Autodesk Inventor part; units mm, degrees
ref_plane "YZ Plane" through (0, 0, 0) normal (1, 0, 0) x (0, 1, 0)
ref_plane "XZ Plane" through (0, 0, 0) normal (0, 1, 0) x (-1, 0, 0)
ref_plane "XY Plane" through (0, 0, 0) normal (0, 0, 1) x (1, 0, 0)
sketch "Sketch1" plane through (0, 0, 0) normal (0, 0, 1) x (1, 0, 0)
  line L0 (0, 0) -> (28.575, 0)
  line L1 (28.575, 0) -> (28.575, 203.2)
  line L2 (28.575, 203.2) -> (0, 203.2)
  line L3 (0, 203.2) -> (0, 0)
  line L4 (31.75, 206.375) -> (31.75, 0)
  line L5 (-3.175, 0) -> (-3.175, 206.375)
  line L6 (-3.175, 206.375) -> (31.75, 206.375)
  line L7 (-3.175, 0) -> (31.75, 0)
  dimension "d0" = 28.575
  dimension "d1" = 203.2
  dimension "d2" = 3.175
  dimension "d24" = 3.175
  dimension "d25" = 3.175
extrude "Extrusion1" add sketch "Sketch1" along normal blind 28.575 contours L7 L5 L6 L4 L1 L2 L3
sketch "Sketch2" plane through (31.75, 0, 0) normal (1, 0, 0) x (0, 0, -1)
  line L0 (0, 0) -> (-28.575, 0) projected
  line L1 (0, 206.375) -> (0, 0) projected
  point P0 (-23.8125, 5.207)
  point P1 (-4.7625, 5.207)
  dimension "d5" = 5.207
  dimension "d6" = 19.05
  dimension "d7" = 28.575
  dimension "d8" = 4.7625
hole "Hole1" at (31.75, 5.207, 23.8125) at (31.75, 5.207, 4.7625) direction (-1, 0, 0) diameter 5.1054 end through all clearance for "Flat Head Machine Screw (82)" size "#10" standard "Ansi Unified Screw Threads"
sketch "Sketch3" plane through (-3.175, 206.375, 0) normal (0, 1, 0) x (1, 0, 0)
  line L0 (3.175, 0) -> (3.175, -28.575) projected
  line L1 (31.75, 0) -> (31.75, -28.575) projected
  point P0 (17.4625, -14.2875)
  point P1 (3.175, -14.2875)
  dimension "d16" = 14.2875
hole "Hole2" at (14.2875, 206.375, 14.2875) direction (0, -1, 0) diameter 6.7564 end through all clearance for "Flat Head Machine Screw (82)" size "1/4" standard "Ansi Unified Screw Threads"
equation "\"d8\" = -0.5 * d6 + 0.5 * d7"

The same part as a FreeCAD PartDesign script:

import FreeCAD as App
import Part
import Sketcher
Q = App.Units.Quantity


def add_polygon(sketch, points):
    """Adds a closed chain of lines whose ends are joined by coincident constraints."""
    first, n = sketch.GeometryCount, len(points)
    for a, b in zip(points, points[1:] + points[:1]):
        sketch.addGeometry(Part.LineSegment(App.Vector(*a, 0), App.Vector(*b, 0)), False)
    for i in range(n):
        sketch.addConstraint(Sketcher.Constraint("Coincident", first + i, 2, first + (i + 1) % n, 1))

doc = App.newDocument("Part")
params = doc.addObject("Spreadsheet::Sheet", "Params")
for row, (alias, value) in enumerate([
    ("sketch1_height", "8 in"),
    ("sketch1_width", "0.125 in"),
    ("sketch1_width2", "1.125 in"),
    ("pad1_length", "1.125 in"),
    ("sketch2_diameter", "0.201 in"),
    ("hole_diameter", "0.201 in"),
    ("sketch3_diameter", "0.266 in"),
    ("hole2_diameter", "0.266 in"),
], start=1):
    params.set(f"A{row}", alias)
    params.set(f"B{row}", "=" + value)
    params.setAlias(f"B{row}", alias)

body = doc.addObject("PartDesign::Body", "Body")

# Sketch on XY plane
sketch1 = body.newObject("Sketcher::SketchObject", "Sketch")
sketch1.AttachmentSupport = (doc.getObject("XY_Plane"), [""])
sketch1.MapMode = "FlatFace"
add_polygon(sketch1, [(-3.2, 0), (0, 0), (0, 203.2), (28.6, 203.2), (28.6, 0), (31.8, 0), (31.8, 206.4), (-3.2, 206.4)])  # lines 0-7
sketch1.addConstraint([
    Sketcher.Constraint("Horizontal", 0),
    Sketcher.Constraint("Vertical", 1),
    Sketcher.Constraint("Horizontal", 2),
    Sketcher.Constraint("Vertical", 3),
    Sketcher.Constraint("Horizontal", 4),
    Sketcher.Constraint("Vertical", 5),
    Sketcher.Constraint("Horizontal", 6),
    Sketcher.Constraint("Vertical", 7),
    Sketcher.Constraint("Coincident", 0, 2, -1, 1),
    Sketcher.Constraint("PointOnObject", 3, 2, -1),
    Sketcher.Constraint("Equal", 0, 4),
    Sketcher.Constraint("DistanceY", 1, 1, 1, 2, Q("8 in")),
    Sketcher.Constraint("DistanceX", 0, 1, 0, 2, Q("0.125 in")),
    Sketcher.Constraint("DistanceX", 2, 1, 2, 2, Q("1.125 in")),
    Sketcher.Constraint("DistanceY", 2, 2, 5, 2, Q("0.125 in")),
])
sketch1.setExpression("Constraints[19]", "Params.sketch1_height")
sketch1.setExpression("Constraints[20]", "Params.sketch1_width")
sketch1.setExpression("Constraints[21]", "Params.sketch1_width2")
pad1 = body.newObject("PartDesign::Pad", "Pad")
pad1.Profile = sketch1
pad1.setExpression("Length", "Params.pad1_length")

# Sketch on YZ plane
sketch2 = body.newObject("Sketcher::SketchObject", "Sketch001")
sketch2.AttachmentSupport = (doc.getObject("YZ_Plane"), [""])
sketch2.MapMode = "FlatFace"
sketch2.AttachmentOffset = App.Placement(App.Vector(0, 0, 1.25 * 25.4), App.Rotation())
sketch2.addGeometry([
    Part.Circle(App.Vector(5.2, 23.8, 0), App.Vector(0, 0, 1), 2.6),
    Part.Circle(App.Vector(5.2, 4.8, 0), App.Vector(0, 0, 1), 2.6),
], False)
sketch2.addConstraint([
    Sketcher.Constraint("Equal", 0, 1),
    Sketcher.Constraint("Vertical", 0, 3, 1, 3),
    Sketcher.Constraint("Diameter", 0, Q("0.201 in")),
    Sketcher.Constraint("DistanceY", 1, 3, 0, 3, Q("0.75 in")),
    Sketcher.Constraint("DistanceX", -1, 1, 0, 3, Q("0.205 in")),
    Sketcher.Constraint("DistanceY", -1, 1, 0, 3, Q("0.9375 in")),
])
sketch2.setExpression("Constraints[2]", "Params.sketch2_diameter")
doc.recompute()
hole = body.newObject("PartDesign::Hole", "Hole")
hole.Profile = sketch2
hole.ThreadType = "None"
hole.setExpression("Diameter", "Params.hole_diameter")
hole.DepthType = "ThroughAll"

# Sketch on XZ plane
sketch3 = body.newObject("Sketcher::SketchObject", "Sketch002")
sketch3.AttachmentSupport = (doc.getObject("XZ_Plane"), [""])
sketch3.MapMode = "FlatFace"
sketch3.AttachmentOffset = App.Placement(App.Vector(0, 0, -8.125 * 25.4), App.Rotation())
sketch3.addGeometry(Part.Circle(App.Vector(14.3, 14.3, 0), App.Vector(0, 0, 1), 3.4), False)
sketch3.addConstraint([
    Sketcher.Constraint("Diameter", 0, Q("0.266 in")),
    Sketcher.Constraint("DistanceX", -1, 1, 0, 3, Q("0.5625 in")),
    Sketcher.Constraint("DistanceY", -1, 1, 0, 3, Q("0.5625 in")),
])
sketch3.setExpression("Constraints[0]", "Params.sketch3_diameter")
doc.recompute()
hole2 = body.newObject("PartDesign::Hole", "Hole001")
hole2.Profile = sketch3
hole2.ThreadType = "None"
hole2.setExpression("Diameter", "Params.hole2_diameter")
hole2.DepthType = "ThroughAll"
hole2.Reversed = True

doc.recompute()
